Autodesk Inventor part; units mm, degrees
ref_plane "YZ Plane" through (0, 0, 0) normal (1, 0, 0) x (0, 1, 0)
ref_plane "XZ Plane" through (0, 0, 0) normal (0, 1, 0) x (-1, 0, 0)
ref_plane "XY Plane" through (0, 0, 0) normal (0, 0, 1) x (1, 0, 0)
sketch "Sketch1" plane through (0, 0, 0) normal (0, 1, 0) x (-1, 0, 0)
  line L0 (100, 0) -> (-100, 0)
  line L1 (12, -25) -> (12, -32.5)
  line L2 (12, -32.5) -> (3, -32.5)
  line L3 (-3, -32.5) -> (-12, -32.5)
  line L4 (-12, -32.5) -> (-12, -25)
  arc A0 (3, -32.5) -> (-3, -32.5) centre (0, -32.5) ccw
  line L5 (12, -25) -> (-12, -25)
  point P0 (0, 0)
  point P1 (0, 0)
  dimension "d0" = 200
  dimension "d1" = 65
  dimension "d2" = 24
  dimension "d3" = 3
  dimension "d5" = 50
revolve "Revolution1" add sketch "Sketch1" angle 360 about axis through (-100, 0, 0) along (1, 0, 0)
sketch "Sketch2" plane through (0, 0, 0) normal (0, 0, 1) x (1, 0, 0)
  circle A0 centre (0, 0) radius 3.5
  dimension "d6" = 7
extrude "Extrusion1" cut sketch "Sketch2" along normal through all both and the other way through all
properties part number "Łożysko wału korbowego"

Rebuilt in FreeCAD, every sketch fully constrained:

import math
import FreeCAD as App
import Part
import Sketcher

doc = App.newDocument("Part")
body = doc.addObject("PartDesign::Body", "Body")

# Sketch on XZ plane
sketch1 = doc.addObject("Sketcher::SketchObject", "Sketch")
body.addObject(sketch1)
sketch1.AttachmentSupport = (doc.XZ_Plane, [""])
sketch1.MapMode = "FlatFace"
sketch1.addGeometry(Part.LineSegment(App.Vector(-12, -32.5, 0), App.Vector(-12, -25, 0)), False)
sketch1.addGeometry(Part.LineSegment(App.Vector(-12, -25, 0), App.Vector(12, -25, 0)), False)
sketch1.addGeometry(Part.LineSegment(App.Vector(12, -25, 0), App.Vector(12, -32.5, 0)), False)
sketch1.addGeometry(Part.LineSegment(App.Vector(12, -32.5, 0), App.Vector(3, -32.5, 0)), False)
sketch1.addGeometry(Part.ArcOfCircle(Part.Circle(App.Vector(0, -32.5, 0), App.Vector(0, 0, 1), 3), math.radians(0), math.radians(180)), False)
sketch1.addGeometry(Part.LineSegment(App.Vector(-3, -32.5, 0), App.Vector(-12, -32.5, 0)), False)
sketch1.addConstraint(Sketcher.Constraint("Coincident", 0, 2, 1, 1))
sketch1.addConstraint(Sketcher.Constraint("Coincident", 1, 2, 2, 1))
sketch1.addConstraint(Sketcher.Constraint("Coincident", 2, 2, 3, 1))
sketch1.addConstraint(Sketcher.Constraint("Coincident", 3, 2, 4, 1))
sketch1.addConstraint(Sketcher.Constraint("Coincident", 4, 2, 5, 1))
sketch1.addConstraint(Sketcher.Constraint("Coincident", 5, 2, 0, 1))
sketch1.addConstraint(Sketcher.Constraint("Vertical", 0))
sketch1.addConstraint(Sketcher.Constraint("Horizontal", 1))
sketch1.addConstraint(Sketcher.Constraint("Vertical", 2))
sketch1.addConstraint(Sketcher.Constraint("Horizontal", 3))
sketch1.addConstraint(Sketcher.Constraint("Horizontal", 5))
sketch1.addConstraint(Sketcher.Constraint("Symmetric", 3, 2, 4, 2, -2))
sketch1.addConstraint(Sketcher.Constraint("Horizontal", 4, 3, 2, 2))
sketch1.addConstraint(Sketcher.Constraint("Equal", 3, 5))
sketch1.addConstraint(Sketcher.Constraint("Radius", 4, 3.0))
sketch1.addConstraint(Sketcher.Constraint("DistanceX", 1, 1, 1, 2, 24.0))
sketch1.addConstraint(Sketcher.Constraint("DistanceY", 0, 1, 0, 2, 7.5))
sketch1.addConstraint(Sketcher.Constraint("DistanceY", 0, 2, -1, 1, 25.0))
revolution = doc.addObject("PartDesign::Revolution", "Revolution")
body.addObject(revolution)
revolution.Profile = sketch1
revolution.ReferenceAxis = (sketch1, ["H_Axis"])
revolution.Angle = 360

# Sketch on XY plane
sketch2 = doc.addObject("Sketcher::SketchObject", "Sketch001")
body.addObject(sketch2)
sketch2.AttachmentSupport = (doc.XY_Plane, [""])
sketch2.MapMode = "FlatFace"
sketch2.addGeometry(Part.Circle(App.Vector(0, 0, 0), App.Vector(0, 0, 1), 3.5), False)
sketch2.addConstraint(Sketcher.Constraint("Coincident", 0, 3, -1, 1))
sketch2.addConstraint(Sketcher.Constraint("Diameter", 0, 7.0))
pocket1 = doc.addObject("PartDesign::Pocket", "Pocket")
body.addObject(pocket1)
pocket1.Profile = sketch2
pocket1.Type = "ThroughAll"
pocket1.Midplane = True

doc.recompute()
